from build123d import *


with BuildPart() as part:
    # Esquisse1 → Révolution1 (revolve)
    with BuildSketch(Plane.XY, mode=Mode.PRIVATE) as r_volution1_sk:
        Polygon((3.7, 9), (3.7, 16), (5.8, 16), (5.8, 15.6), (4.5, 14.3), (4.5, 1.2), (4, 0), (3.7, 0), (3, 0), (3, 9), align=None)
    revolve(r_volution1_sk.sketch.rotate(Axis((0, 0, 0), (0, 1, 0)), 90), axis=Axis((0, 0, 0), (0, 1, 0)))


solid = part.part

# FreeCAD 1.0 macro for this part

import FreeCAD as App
import Part
import Sketcher

V = App.Vector
Q = App.Units.Quantity


def add_polygon(sketch, points):
    """Adds a closed chain of lines whose ends are joined by coincident constraints."""
    first, n = sketch.GeometryCount, len(points)
    for a, b in zip(points, points[1:] + points[:1]):
        sketch.addGeometry(Part.LineSegment(App.Vector(*a, 0), App.Vector(*b, 0)), False)
    for i in range(n):
        sketch.addConstraint(Sketcher.Constraint("Coincident", first + i, 2, first + (i + 1) % n, 1))

doc = App.newDocument("Part")
params = doc.addObject("Spreadsheet::Sheet", "Params")
for row, (alias, value) in enumerate([
    ("sketch1_width", "1 mm"),
    ("sketch1_height", "7 mm"),
    ("sketch1_height2", "9 mm"),
    ("sketch1_width2", "0.7 mm"),
    ("sketch1_width3", "2.1 mm"),
    ("revolution_angle", "360 deg"),
], start=1):
    params.set(f"A{row}", alias)
    params.set(f"B{row}", "=" + value)
    params.setAlias(f"B{row}", alias)

body = doc.addObject("PartDesign::Body", "Body")

sketch1 = body.newObject("Sketcher::SketchObject", "Sketch")
sketch1.AttachmentSupport = (doc.getObject("XY_Plane"), [""])
sketch1.MapMode = "FlatFace"
add_polygon(sketch1, [(3.7, 16), (3.7, 9), (3, 9), (3, 0), (4, 0), (4.5, 1.2), (4.5, 14.3), (5.8, 15.6), (5.8, 16)])
sketch1.addConstraint(Sketcher.Constraint("Vertical", 0))
sketch1.addConstraint(Sketcher.Constraint("Horizontal", 1))
sketch1.addConstraint(Sketcher.Constraint("Vertical", 2))
sketch1.addConstraint(Sketcher.Constraint("Horizontal", 3))
sketch1.addConstraint(Sketcher.Constraint("Vertical", 5))
sketch1.addConstraint(Sketcher.Constraint("Vertical", 7))
sketch1.addConstraint(Sketcher.Constraint("Horizontal", 8))
sketch1.addConstraint(Sketcher.Constraint("PointOnObject", 2, 2, -1))
sketch1.addConstraint(Sketcher.Constraint("DistanceX", 3, 1, 3, 2, 1.0))
sketch1.addConstraint(Sketcher.Constraint("DistanceY", 0, 2, 0, 1, 7.0))
sketch1.addConstraint(Sketcher.Constraint("DistanceY", 2, 2, 2, 1, 9.0))
sketch1.addConstraint(Sketcher.Constraint("Angle", 6, Q("45 deg")))
sketch1.addConstraint(Sketcher.Constraint("DistanceX", 1, 2, 1, 1, 0.7))
sketch1.addConstraint(Sketcher.Constraint("DistanceX", 8, 2, 8, 1, 2.1))
sketch1.addConstraint(Sketcher.Constraint("DistanceY", 5, 1, 5, 2, 13.1))
sketch1.addConstraint(Sketcher.Constraint("DistanceY", 7, 1, 7, 2, 0.4))
sketch1.addConstraint(Sketcher.Constraint("DistanceX", -1, 1, 1, 2, 3.0))
sketch1.addConstraint(Sketcher.Constraint("Distance", 4, 1.3))
sketch1.setExpression("Constraints[17]", "Params.sketch1_width")
sketch1.setExpression("Constraints[18]", "Params.sketch1_height")
sketch1.setExpression("Constraints[19]", "Params.sketch1_height2")
sketch1.setExpression("Constraints[21]", "Params.sketch1_width2")
sketch1.setExpression("Constraints[22]", "Params.sketch1_width3")
revolution = body.newObject("PartDesign::Revolution", "Revolution")
revolution.Profile = sketch1
revolution.ReferenceAxis = (sketch1, ["V_Axis"])
revolution.setExpression("Angle", "Params.revolution_angle")

doc.recompute()
